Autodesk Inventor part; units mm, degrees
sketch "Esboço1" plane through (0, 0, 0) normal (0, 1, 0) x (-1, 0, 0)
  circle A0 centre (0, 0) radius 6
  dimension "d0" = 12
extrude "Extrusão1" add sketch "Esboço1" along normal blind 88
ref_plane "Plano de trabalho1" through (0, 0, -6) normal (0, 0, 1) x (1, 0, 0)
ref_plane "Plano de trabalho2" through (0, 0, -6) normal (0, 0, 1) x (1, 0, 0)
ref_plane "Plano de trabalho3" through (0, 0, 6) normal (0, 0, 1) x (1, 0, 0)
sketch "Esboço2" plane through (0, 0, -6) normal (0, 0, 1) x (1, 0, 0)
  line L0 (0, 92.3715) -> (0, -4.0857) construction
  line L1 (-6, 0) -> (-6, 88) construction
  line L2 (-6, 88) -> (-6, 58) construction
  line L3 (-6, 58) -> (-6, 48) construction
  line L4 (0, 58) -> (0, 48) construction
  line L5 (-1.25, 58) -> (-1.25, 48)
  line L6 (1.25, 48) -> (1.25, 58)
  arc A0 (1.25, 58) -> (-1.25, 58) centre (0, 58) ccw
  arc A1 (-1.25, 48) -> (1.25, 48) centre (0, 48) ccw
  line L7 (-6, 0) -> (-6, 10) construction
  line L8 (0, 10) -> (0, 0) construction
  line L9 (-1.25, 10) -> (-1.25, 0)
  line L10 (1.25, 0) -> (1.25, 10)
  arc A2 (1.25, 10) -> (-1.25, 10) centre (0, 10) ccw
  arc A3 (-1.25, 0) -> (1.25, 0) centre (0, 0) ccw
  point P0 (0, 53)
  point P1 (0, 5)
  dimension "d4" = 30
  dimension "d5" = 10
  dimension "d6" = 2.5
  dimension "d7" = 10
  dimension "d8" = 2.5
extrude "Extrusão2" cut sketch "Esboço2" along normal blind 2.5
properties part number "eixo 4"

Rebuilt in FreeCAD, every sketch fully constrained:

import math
import FreeCAD as App
import Part
import Sketcher
from FreeCAD import Vector
Q = App.Units.Quantity

doc = App.newDocument("Part")
body = doc.addObject("PartDesign::Body", "Body")

sketch1 = body.newObject("Sketcher::SketchObject", "Sketch")
sketch1.AttachmentSupport = (doc.getObject("XZ_Plane"), [""])
sketch1.MapMode = "FlatFace"
sketch1.addGeometry(Part.Circle(Vector(0, 0, 0), Vector(0, 0, 1), 6), False)
sketch1.addConstraint([
    Sketcher.Constraint("Coincident", 0, 3, -1, 1),
    Sketcher.Constraint("Diameter", 0, Q("12 mm")),
])
pad1 = body.newObject("PartDesign::Pad", "Pad")
pad1.Profile = sketch1
pad1.Length = 88
pad1.Reversed = True

sketch2 = body.newObject("Sketcher::SketchObject", "Sketch001")
sketch2.AttachmentSupport = (doc.getObject("XY_Plane"), [""])
sketch2.MapMode = "FlatFace"
sketch2.AttachmentOffset = App.Placement(Vector(0, 0, -6), App.Rotation())
sketch2.addGeometry([
    Part.ArcOfCircle(Part.Circle(Vector(0, 58, 0), Vector(0, 0, 1), 1.25), math.radians(0), math.radians(180)),
    Part.LineSegment(Vector(-1.25, 58, 0), Vector(-1.25, 48, 0)),
    Part.ArcOfCircle(Part.Circle(Vector(0, 48, 0), Vector(0, 0, 1), 1.25), math.radians(180), math.radians(360)),
    Part.LineSegment(Vector(1.25, 48, 0), Vector(1.25, 58, 0)),
    Part.ArcOfCircle(Part.Circle(Vector(0, 10, 0), Vector(0, 0, 1), 1.25), math.radians(0), math.radians(180)),
    Part.LineSegment(Vector(-1.25, 10, 0), Vector(-1.25, 0, 0)),
    Part.ArcOfCircle(Part.Circle(Vector(0, 0, 0), Vector(0, 0, 1), 1.25), math.radians(180), math.radians(360)),
    Part.LineSegment(Vector(1.25, 0, 0), Vector(1.25, 10, 0)),
], False)
sketch2.addConstraint([
    Sketcher.Constraint("Tangent", 0, 2, 1, 1),
    Sketcher.Constraint("Tangent", 1, 2, 2, 1),
    Sketcher.Constraint("Tangent", 2, 2, 3, 1),
    Sketcher.Constraint("Tangent", 3, 2, 0, 1),
    Sketcher.Constraint("Tangent", 4, 2, 5, 1),
    Sketcher.Constraint("Tangent", 5, 2, 6, 1),
    Sketcher.Constraint("Tangent", 6, 2, 7, 1),
    Sketcher.Constraint("Tangent", 7, 2, 4, 1),
    Sketcher.Constraint("Vertical", 1),
    Sketcher.Constraint("Vertical", 3),
    Sketcher.Constraint("Vertical", 5),
    Sketcher.Constraint("Vertical", 7),
    Sketcher.Constraint("Coincident", 6, 3, -1, 1),
    Sketcher.Constraint("Equal", 2, 4),
    Sketcher.Constraint("PointOnObject", 0, 3, -2),
    Sketcher.Constraint("Equal", 3, 5),
    Sketcher.Constraint("DistanceY", 1, 2, 1, 1, Q("10 mm")),
    Sketcher.Constraint("Radius", 0, Q("1.25 mm")),
    Sketcher.Constraint("DistanceY", -1, 1, 0, 3, Q("58 mm")),
])
pocket1 = body.newObject("PartDesign::Pocket", "Pocket")
pocket1.Profile = sketch2
pocket1.Length = 2.5
pocket1.Reversed = True

doc.recompute()
